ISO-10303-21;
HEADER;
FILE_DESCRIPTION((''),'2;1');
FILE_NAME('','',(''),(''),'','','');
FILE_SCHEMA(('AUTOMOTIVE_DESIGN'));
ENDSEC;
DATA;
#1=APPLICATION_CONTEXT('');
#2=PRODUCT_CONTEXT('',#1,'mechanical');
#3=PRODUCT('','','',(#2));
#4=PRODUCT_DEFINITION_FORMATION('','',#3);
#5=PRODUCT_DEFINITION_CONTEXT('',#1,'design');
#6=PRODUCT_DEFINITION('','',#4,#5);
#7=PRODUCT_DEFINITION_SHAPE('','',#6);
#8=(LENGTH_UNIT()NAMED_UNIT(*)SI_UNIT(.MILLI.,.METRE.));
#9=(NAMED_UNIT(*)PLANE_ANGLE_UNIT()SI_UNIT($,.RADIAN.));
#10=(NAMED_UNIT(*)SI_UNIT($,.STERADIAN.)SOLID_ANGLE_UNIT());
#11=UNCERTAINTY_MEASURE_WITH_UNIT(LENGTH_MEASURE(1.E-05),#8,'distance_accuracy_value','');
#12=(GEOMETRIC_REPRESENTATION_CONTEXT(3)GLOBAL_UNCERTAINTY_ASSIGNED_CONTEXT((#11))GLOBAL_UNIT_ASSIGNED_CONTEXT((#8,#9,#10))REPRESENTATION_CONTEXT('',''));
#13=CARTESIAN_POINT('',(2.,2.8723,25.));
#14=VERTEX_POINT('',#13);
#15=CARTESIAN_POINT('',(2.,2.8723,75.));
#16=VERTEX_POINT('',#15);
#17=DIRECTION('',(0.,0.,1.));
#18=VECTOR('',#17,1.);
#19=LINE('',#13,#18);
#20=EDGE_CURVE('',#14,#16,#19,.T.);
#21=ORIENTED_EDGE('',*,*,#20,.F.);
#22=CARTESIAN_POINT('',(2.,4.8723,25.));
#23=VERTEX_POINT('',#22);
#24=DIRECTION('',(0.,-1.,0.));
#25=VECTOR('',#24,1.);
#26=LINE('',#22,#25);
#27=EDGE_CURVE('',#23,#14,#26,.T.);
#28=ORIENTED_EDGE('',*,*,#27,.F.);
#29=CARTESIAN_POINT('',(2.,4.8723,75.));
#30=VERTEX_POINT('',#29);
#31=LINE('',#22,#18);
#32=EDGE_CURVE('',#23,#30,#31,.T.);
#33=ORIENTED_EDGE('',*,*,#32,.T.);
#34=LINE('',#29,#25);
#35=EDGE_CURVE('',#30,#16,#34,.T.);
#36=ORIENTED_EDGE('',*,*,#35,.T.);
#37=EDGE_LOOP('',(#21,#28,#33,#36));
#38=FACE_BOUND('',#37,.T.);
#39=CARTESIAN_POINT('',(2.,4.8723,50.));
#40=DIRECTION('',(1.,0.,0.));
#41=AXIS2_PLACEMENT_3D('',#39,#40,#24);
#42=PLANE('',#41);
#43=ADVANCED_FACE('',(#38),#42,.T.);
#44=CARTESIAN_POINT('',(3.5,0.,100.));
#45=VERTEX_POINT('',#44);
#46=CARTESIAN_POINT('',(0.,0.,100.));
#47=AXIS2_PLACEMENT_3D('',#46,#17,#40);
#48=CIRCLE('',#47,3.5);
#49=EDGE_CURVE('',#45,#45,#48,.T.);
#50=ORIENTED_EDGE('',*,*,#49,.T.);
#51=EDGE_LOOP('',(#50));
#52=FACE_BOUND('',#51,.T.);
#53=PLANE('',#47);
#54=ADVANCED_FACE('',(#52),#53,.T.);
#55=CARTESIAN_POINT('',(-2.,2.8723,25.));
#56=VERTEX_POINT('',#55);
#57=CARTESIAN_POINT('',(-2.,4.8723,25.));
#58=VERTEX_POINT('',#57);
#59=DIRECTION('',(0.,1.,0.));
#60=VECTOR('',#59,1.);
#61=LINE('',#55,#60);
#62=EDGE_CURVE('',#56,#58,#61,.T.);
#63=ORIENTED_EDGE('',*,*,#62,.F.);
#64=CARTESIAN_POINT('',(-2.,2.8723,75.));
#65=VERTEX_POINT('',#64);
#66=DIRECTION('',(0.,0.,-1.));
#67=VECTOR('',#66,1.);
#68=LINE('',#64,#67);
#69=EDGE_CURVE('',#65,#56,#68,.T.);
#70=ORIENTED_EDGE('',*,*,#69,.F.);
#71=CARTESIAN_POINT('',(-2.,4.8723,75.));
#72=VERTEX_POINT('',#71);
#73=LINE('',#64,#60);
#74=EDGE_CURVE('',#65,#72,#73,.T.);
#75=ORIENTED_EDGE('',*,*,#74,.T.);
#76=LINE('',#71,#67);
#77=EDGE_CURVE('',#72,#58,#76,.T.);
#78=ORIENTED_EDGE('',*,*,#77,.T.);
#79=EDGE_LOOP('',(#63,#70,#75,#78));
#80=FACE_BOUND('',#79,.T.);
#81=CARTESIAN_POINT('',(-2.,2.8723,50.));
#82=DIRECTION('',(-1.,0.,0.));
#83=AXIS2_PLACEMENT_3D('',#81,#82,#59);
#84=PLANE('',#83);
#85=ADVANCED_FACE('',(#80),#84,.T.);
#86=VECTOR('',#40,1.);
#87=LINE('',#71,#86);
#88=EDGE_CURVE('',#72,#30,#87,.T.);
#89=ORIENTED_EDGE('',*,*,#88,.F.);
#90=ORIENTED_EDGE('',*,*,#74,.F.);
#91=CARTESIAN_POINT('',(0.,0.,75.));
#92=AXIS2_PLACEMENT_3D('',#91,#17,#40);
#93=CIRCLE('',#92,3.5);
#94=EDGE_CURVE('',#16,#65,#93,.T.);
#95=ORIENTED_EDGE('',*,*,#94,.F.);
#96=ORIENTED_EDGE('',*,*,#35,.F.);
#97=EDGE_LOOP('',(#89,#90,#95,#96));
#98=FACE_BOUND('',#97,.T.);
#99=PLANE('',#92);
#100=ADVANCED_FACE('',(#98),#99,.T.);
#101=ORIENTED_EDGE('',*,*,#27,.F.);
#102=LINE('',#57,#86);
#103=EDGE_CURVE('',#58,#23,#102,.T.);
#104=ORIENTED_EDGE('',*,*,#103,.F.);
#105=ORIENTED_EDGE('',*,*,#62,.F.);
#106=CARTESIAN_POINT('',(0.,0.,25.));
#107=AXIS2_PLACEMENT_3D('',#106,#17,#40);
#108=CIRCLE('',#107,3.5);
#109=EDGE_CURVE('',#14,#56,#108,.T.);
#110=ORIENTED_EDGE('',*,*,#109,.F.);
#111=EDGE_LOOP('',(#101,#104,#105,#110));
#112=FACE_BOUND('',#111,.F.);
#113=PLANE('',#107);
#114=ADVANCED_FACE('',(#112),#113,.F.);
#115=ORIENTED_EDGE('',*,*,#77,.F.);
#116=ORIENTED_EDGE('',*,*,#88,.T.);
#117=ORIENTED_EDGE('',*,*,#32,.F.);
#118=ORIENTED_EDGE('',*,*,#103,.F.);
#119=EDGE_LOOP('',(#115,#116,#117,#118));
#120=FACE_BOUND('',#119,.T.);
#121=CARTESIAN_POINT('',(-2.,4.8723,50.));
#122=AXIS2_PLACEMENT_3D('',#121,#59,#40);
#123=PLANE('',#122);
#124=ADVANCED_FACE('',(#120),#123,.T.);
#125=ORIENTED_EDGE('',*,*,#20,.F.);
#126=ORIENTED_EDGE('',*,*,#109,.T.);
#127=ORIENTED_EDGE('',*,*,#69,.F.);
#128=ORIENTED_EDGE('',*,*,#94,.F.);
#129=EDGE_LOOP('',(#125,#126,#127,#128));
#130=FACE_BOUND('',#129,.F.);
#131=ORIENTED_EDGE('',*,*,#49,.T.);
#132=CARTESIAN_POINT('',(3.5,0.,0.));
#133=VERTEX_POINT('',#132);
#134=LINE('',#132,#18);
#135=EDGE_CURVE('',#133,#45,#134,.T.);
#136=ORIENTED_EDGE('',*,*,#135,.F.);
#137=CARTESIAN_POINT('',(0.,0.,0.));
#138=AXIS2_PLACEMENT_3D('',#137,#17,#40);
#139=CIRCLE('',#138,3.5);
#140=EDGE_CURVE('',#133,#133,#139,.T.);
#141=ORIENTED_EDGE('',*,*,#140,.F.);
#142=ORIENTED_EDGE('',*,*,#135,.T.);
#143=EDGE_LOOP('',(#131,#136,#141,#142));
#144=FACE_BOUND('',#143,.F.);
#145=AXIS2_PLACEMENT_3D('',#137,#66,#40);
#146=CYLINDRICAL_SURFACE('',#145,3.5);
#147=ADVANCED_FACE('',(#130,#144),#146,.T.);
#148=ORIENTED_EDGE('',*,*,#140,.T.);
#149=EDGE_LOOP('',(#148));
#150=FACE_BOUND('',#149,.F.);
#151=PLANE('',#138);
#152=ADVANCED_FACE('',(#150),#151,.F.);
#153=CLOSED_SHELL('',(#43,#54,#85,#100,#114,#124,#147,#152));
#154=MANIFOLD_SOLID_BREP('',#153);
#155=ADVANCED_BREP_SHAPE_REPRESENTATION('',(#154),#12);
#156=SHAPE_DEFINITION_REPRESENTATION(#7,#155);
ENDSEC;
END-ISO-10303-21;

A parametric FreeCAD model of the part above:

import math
import FreeCAD as App
import Part
import Sketcher
from FreeCAD import Vector

doc = App.newDocument("Part")
params = doc.addObject("Spreadsheet::Sheet", "Params")
for row, (alias, value) in enumerate([
    ("sketch1_diameter", "7 mm"),
    ("pad1_length", "100 mm"),
    ("sketch2_width", "4 mm"),
    ("sketch2_height", "2 mm"),
    ("sketch2_radius", "3.5 mm"),
    ("pad2_length", "50 mm"),
], start=1):
    params.set(f"A{row}", alias)
    params.set(f"B{row}", "=" + value)
    params.setAlias(f"B{row}", alias)

body = doc.addObject("PartDesign::Body", "Body")

sketch1 = doc.addObject("Sketcher::SketchObject", "Sketch")
body.addObject(sketch1)
sketch1.AttachmentSupport = (doc.XY_Plane, [""])
sketch1.MapMode = "FlatFace"
sketch1.addGeometry(Part.Circle(Vector(0, 0, 0), Vector(0, 0, 1), 3.5), False)
sketch1.addConstraint([
    Sketcher.Constraint("Coincident", 0, 3, -1, 1),
    Sketcher.Constraint("Diameter", 0, 7.0),
])
sketch1.setExpression("Constraints[1]", "Params.sketch1_diameter")
pad1 = doc.addObject("PartDesign::Pad", "Pad")
body.addObject(pad1)
pad1.Profile = sketch1
pad1.setExpression("Length", "Params.pad1_length")

sketch2 = doc.addObject("Sketcher::SketchObject", "Sketch001")
body.addObject(sketch2)
sketch2.AttachmentSupport = (doc.XY_Plane, [""])
sketch2.MapMode = "FlatFace"
sketch2.AttachmentOffset = App.Placement(Vector(0, 0, 50), App.Rotation())
sketch2.addGeometry([
    Part.ArcOfCircle(Part.Circle(Vector(0, 0, 0), Vector(0, 0, 1), 3.5), math.radians(55), math.radians(125)),
    Part.LineSegment(Vector(2, 2.9, 0), Vector(2, 4.9, 0)),
    Part.LineSegment(Vector(2, 4.9, 0), Vector(-2, 4.9, 0)),
    Part.LineSegment(Vector(-2, 4.9, 0), Vector(-2, 2.9, 0)),
], False)
sketch2.addConstraint([
    Sketcher.Constraint("Coincident", 0, 1, 1, 1),
    Sketcher.Constraint("Coincident", 1, 2, 2, 1),
    Sketcher.Constraint("Coincident", 2, 2, 3, 1),
    Sketcher.Constraint("Coincident", 3, 2, 0, 2),
    Sketcher.Constraint("Vertical", 1),
    Sketcher.Constraint("Horizontal", 2),
    Sketcher.Constraint("Vertical", 3),
    Sketcher.Constraint("Coincident", 0, 3, -1, 1),
    Sketcher.Constraint("Horizontal", 0, 1, 3, 2),
    Sketcher.Constraint("DistanceX", 2, 2, 2, 1, 4.0),
    Sketcher.Constraint("DistanceY", 1, 1, 1, 2, 2.0),
    Sketcher.Constraint("Radius", 0, 3.5),
])
sketch2.setExpression("Constraints[9]", "Params.sketch2_width")
sketch2.setExpression("Constraints[10]", "Params.sketch2_height")
sketch2.setExpression("Constraints[11]", "Params.sketch2_radius")
pad2 = doc.addObject("PartDesign::Pad", "Pad001")
body.addObject(pad2)
pad2.Profile = sketch2
pad2.setExpression("Length", "Params.pad2_length")
pad2.Midplane = True

doc.recompute()
